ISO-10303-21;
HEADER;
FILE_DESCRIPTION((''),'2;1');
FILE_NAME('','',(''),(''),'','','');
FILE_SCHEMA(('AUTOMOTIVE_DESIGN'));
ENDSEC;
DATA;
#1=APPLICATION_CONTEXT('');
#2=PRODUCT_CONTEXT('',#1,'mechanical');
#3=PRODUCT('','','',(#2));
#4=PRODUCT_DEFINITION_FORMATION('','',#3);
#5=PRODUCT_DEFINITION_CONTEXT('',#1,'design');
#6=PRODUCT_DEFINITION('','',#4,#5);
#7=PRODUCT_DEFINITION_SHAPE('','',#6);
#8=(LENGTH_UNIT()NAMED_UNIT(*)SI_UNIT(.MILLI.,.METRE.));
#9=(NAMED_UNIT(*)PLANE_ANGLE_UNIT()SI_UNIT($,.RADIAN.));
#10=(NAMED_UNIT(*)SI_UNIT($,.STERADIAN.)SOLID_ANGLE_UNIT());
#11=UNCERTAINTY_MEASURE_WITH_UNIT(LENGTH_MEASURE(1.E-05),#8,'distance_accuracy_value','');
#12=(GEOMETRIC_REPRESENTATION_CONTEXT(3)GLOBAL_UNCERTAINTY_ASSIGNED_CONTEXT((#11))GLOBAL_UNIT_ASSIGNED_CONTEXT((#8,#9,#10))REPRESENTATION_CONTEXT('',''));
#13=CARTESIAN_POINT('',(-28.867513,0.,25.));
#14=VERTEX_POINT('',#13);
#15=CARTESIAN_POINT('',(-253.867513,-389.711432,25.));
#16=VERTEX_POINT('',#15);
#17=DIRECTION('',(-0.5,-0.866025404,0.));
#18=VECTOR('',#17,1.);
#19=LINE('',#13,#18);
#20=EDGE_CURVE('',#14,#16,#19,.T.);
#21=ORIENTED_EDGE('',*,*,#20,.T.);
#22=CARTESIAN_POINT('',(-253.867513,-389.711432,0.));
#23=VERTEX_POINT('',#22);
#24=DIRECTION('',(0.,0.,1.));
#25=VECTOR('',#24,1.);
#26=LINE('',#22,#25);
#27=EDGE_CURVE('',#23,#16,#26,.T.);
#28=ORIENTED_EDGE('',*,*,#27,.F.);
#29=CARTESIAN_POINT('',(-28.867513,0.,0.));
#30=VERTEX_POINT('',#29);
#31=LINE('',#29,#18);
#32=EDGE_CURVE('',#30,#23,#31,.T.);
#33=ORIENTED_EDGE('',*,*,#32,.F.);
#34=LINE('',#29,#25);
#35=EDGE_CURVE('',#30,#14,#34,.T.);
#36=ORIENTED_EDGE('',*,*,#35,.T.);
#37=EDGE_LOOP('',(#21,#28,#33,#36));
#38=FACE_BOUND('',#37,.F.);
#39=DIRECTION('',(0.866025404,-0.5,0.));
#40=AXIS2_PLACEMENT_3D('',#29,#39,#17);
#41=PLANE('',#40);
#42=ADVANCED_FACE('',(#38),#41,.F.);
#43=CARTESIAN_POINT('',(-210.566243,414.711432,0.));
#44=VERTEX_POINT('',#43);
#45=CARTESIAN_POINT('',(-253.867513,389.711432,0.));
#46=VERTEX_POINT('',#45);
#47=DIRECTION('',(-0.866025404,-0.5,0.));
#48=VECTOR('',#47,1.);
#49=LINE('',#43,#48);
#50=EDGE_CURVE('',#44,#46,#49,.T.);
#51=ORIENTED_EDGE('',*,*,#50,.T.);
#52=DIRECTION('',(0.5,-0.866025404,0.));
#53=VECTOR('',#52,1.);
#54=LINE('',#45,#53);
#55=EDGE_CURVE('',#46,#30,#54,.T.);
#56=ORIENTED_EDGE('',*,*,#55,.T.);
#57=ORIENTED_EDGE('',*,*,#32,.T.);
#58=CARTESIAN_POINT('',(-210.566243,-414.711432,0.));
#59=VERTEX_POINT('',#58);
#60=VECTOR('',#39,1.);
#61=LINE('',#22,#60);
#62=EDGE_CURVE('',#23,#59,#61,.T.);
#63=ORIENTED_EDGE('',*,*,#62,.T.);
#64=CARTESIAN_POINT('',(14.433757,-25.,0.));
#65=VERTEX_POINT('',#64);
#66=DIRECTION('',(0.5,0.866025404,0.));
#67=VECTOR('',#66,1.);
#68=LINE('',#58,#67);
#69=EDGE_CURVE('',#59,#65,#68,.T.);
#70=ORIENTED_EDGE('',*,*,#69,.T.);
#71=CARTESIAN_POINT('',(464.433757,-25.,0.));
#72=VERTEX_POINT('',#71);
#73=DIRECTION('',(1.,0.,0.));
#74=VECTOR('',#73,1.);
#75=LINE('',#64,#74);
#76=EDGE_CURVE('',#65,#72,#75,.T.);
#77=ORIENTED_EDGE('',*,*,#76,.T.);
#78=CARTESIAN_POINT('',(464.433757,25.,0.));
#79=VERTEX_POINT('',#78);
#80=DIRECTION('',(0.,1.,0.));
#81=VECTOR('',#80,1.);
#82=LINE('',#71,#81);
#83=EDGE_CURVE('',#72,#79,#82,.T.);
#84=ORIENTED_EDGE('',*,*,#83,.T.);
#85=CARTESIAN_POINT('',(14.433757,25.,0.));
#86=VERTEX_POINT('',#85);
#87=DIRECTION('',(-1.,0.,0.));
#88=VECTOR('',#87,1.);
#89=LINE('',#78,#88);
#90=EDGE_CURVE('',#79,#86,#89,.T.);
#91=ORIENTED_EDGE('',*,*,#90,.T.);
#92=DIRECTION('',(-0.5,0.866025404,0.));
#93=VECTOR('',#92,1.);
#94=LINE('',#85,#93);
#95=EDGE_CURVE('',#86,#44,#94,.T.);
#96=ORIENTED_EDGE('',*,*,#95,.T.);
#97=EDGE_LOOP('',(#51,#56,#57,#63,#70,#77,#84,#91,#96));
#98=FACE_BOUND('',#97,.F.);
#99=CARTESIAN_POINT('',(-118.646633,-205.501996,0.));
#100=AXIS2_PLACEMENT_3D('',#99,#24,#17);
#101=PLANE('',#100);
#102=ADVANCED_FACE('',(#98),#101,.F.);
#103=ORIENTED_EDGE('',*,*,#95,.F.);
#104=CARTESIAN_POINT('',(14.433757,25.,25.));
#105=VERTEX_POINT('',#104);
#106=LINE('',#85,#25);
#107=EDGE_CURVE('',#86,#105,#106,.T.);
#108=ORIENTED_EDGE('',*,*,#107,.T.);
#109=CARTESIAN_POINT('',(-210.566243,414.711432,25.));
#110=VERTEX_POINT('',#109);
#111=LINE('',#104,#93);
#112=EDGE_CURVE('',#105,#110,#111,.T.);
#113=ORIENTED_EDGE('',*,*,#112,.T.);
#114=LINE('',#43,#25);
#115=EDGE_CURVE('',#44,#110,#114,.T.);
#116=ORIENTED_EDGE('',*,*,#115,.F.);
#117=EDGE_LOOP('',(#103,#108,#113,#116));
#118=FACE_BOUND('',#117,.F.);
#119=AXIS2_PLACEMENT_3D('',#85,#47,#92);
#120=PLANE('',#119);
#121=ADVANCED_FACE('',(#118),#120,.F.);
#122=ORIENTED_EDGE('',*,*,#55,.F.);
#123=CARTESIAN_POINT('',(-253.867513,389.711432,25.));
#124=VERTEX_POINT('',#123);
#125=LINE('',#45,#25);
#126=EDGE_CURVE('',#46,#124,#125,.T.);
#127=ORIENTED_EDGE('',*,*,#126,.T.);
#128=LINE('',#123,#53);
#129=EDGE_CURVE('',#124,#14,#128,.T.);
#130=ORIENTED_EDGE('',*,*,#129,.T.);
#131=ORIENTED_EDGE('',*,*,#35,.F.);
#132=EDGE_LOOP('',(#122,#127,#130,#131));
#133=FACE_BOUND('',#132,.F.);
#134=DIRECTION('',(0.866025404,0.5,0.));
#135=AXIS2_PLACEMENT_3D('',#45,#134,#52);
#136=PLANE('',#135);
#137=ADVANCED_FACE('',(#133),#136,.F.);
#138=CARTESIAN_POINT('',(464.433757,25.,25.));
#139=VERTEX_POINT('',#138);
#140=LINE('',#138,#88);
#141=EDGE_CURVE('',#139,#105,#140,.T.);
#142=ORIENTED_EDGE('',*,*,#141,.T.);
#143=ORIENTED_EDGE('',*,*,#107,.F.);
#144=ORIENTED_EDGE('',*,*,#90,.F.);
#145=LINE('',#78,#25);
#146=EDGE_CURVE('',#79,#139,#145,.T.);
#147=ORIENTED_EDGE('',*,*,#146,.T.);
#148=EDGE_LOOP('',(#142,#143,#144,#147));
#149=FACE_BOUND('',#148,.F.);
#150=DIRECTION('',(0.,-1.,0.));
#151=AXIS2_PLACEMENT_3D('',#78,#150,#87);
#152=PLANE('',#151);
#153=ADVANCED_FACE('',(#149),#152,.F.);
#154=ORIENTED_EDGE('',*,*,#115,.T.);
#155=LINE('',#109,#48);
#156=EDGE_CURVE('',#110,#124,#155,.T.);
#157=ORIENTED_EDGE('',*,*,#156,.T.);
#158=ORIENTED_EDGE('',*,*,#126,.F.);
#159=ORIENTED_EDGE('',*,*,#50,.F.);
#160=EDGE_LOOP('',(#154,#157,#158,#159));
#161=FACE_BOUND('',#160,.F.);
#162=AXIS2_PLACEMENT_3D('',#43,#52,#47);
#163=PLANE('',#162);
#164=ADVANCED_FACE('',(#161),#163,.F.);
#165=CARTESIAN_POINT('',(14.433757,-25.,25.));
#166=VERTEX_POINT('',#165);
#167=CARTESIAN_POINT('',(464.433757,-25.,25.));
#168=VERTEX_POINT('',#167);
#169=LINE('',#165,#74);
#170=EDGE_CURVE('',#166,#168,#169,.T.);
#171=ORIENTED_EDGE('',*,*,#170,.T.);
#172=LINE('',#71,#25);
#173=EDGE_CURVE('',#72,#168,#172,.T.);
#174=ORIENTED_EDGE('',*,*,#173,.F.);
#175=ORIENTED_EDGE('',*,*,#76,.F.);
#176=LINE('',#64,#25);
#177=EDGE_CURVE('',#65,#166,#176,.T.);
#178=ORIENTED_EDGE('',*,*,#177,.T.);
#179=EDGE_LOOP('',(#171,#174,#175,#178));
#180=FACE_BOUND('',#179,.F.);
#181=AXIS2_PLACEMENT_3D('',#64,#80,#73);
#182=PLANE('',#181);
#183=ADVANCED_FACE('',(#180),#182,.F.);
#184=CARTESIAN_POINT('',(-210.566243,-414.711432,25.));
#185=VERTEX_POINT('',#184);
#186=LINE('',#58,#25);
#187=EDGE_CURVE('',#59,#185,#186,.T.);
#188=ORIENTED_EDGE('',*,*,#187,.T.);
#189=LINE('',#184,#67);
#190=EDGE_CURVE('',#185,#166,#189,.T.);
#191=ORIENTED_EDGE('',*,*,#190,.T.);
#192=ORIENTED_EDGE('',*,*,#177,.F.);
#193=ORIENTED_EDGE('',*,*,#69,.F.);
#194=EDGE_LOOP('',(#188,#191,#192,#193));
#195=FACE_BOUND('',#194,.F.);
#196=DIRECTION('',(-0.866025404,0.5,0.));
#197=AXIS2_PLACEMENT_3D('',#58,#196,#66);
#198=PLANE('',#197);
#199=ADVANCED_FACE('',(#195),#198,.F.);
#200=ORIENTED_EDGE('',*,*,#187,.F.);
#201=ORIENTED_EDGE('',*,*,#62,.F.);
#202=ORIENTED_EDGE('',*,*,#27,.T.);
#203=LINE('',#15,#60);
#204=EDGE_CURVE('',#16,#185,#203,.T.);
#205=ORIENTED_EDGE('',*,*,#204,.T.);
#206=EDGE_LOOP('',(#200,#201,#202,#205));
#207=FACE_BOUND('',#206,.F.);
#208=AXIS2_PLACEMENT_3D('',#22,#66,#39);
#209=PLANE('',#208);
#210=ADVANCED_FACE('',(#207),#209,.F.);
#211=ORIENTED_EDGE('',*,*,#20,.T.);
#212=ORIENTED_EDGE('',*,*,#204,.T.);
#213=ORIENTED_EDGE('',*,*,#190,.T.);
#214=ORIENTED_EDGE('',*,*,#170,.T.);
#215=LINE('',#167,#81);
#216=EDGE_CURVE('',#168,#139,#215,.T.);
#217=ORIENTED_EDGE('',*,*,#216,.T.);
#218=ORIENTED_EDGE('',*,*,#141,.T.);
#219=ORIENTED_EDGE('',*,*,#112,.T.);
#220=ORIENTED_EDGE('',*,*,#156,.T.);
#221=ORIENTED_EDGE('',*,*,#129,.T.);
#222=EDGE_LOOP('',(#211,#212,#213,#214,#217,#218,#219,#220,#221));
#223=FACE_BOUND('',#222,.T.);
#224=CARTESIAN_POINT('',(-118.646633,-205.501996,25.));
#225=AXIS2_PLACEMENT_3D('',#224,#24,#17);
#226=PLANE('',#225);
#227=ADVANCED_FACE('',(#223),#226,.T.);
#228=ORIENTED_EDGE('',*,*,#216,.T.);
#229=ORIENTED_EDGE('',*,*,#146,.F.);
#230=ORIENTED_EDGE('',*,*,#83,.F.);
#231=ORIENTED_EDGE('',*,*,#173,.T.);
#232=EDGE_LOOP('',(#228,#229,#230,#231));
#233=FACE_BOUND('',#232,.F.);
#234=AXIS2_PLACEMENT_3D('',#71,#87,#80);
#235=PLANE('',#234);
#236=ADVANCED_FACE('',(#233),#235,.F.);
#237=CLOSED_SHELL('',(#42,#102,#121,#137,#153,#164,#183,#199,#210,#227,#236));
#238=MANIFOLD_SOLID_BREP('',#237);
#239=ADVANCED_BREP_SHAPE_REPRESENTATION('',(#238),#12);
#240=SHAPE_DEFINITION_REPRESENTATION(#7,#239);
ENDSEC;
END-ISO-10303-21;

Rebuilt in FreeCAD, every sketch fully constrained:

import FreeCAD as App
import Part
import Sketcher
Q = App.Units.Quantity


def add_polygon(sketch, points):
    """Adds a closed chain of lines whose ends are joined by coincident constraints."""
    first, n = sketch.GeometryCount, len(points)
    for a, b in zip(points, points[1:] + points[:1]):
        sketch.addGeometry(Part.LineSegment(App.Vector(*a, 0), App.Vector(*b, 0)), False)
    for i in range(n):
        sketch.addConstraint(Sketcher.Constraint("Coincident", first + i, 2, first + (i + 1) % n, 1))

doc = App.newDocument("Part")
params = doc.addObject("Spreadsheet::Sheet", "Params")
for row, (alias, value) in enumerate([
    ("sketch1_width", "450 mm"),
    ("sketch1_height", "50 mm"),
    ("pad1_length", "25 mm"),
], start=1):
    params.set(f"A{row}", alias)
    params.set(f"B{row}", "=" + value)
    params.setAlias(f"B{row}", alias)

body = doc.addObject("PartDesign::Body", "Body")

# Sketch on XY plane
sketch1 = body.newObject("Sketcher::SketchObject", "Sketch")
sketch1.AttachmentSupport = (doc.getObject("XY_Plane"), [""])
sketch1.MapMode = "FlatFace"
add_polygon(sketch1, [(14, 25), (0, 0), (14, -25), (464, -25), (464, 25)])  # lines 0-4
sketch1.addConstraint([
    Sketcher.Constraint("Horizontal", 2),
    Sketcher.Constraint("Vertical", 3),
    Sketcher.Constraint("Horizontal", 4),
    Sketcher.Constraint("Coincident", 0, 2, -1, 1),
    Sketcher.Constraint("Symmetric", 1, 2, 4, 2, -1),
    Sketcher.Constraint("DistanceX", 2, 1, 2, 2, 450.0),
    Sketcher.Constraint("DistanceY", 3, 1, 3, 2, 50.0),
    Sketcher.Constraint("Angle", 0, Q("-120 deg")),
])
sketch1.setExpression("Constraints[10]", "Params.sketch1_width")
sketch1.setExpression("Constraints[11]", "Params.sketch1_height")
pad1 = body.newObject("PartDesign::Pad", "Pad")
pad1.Profile = sketch1
pad1.setExpression("Length", "Params.pad1_length")
body2 = doc.addObject("PartDesign::Body", "Body001")
doc.recompute()

body2.BaseFeature = body
doc.recompute()

body3 = doc.addObject("PartDesign::Body", "Body002")
body3.BaseFeature = body
body3.Placement = App.Placement(App.Vector(0, 0, 0), App.Rotation(App.Vector(0, 0, 1), 120))
boolean = body2.newObject("PartDesign::Boolean", "Boolean")
boolean.Type = "Fuse"
boolean.addObjects([body3])
doc.recompute()

body.Placement = App.Placement(App.Vector(0, 0, 0), App.Rotation(App.Vector(0, 0, 1), 240))
boolean2 = body2.newObject("PartDesign::Boolean", "Boolean001")
boolean2.Type = "Fuse"
boolean2.addObjects([body])

doc.recompute()
